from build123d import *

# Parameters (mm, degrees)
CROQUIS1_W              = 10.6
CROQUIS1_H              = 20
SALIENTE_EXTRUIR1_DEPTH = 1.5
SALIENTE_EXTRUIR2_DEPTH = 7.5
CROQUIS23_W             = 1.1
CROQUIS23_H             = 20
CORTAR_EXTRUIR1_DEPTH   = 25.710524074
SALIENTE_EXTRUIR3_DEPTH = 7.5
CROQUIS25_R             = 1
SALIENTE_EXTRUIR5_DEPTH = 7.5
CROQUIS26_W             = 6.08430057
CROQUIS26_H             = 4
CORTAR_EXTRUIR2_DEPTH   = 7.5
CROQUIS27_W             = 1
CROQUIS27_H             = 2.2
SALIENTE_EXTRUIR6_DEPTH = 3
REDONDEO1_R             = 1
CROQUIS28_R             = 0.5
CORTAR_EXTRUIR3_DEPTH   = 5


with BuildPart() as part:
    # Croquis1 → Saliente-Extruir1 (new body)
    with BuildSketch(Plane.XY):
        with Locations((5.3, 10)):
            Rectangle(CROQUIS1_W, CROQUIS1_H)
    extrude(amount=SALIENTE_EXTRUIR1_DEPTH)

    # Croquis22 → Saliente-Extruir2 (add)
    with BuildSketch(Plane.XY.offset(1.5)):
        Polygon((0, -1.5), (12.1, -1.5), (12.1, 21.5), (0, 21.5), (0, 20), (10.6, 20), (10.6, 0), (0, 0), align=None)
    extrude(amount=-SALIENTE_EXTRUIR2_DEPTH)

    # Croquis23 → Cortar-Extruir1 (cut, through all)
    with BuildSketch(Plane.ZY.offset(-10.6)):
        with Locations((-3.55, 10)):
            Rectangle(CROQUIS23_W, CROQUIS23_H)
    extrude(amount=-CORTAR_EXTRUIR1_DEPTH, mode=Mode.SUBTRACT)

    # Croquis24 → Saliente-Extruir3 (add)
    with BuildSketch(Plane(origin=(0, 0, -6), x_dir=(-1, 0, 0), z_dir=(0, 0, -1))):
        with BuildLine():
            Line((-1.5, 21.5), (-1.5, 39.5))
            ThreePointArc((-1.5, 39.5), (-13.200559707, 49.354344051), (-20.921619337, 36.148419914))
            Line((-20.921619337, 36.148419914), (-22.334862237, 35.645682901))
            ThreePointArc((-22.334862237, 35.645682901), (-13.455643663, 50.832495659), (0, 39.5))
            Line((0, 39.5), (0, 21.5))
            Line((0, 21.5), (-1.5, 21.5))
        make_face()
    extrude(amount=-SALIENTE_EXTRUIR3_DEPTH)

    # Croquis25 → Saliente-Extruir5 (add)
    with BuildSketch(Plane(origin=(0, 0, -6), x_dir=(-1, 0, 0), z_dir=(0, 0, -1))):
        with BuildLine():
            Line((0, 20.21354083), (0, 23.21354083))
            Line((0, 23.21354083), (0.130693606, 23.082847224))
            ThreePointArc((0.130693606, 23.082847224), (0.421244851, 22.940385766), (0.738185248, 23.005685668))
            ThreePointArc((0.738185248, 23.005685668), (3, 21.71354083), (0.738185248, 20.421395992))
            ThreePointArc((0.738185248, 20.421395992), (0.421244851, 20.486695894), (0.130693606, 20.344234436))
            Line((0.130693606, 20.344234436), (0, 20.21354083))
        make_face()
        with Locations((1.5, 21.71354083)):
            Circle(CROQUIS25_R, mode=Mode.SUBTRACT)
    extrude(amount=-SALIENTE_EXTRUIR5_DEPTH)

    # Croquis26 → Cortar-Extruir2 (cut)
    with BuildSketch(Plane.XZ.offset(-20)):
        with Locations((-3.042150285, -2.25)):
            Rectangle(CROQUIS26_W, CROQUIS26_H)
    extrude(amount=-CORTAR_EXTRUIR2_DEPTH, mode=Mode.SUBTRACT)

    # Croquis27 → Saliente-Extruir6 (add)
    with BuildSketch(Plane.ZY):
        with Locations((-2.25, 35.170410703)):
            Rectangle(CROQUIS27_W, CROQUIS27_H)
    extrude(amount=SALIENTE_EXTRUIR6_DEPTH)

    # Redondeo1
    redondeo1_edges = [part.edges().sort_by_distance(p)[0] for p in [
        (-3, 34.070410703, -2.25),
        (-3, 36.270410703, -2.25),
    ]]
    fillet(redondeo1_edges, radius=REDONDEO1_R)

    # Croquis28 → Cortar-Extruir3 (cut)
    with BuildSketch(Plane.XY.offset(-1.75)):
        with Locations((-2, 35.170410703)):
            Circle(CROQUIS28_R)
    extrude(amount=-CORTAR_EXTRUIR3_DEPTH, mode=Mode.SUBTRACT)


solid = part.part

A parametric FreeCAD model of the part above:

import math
import FreeCAD as App
import Part
import Sketcher
Q = App.Units.Quantity


def edges_at(feature, points):
    """Names of the edges that pass closest to the given points."""
    edges = feature.Shape.Edges
    near = lambda p: min(range(len(edges)), key=lambda i: edges[i].distToShape(Part.Vertex(*p))[0])
    return sorted({f"Edge{near(p) + 1}" for p in points})

doc = App.newDocument("Part")
body = doc.addObject("PartDesign::Body", "Body")

sketch1 = body.newObject("Sketcher::SketchObject", "Sketch")
sketch1.AttachmentSupport = (doc.getObject("XY_Plane"), [""])
sketch1.MapMode = "FlatFace"
sketch1.addGeometry(Part.LineSegment(App.Vector(0, 20, 0), App.Vector(0, 0, 0)), False)
sketch1.addGeometry(Part.LineSegment(App.Vector(0, 0, 0), App.Vector(10.6, 0, 0)), False)
sketch1.addGeometry(Part.LineSegment(App.Vector(10.6, 0, 0), App.Vector(10.6, 20, 0)), False)
sketch1.addGeometry(Part.LineSegment(App.Vector(10.6, 20, 0), App.Vector(0, 20, 0)), False)
sketch1.addConstraint(Sketcher.Constraint("Coincident", 0, 2, 1, 1))
sketch1.addConstraint(Sketcher.Constraint("Coincident", 1, 2, 2, 1))
sketch1.addConstraint(Sketcher.Constraint("Coincident", 2, 2, 3, 1))
sketch1.addConstraint(Sketcher.Constraint("Coincident", 3, 2, 0, 1))
sketch1.addConstraint(Sketcher.Constraint("Vertical", 0))
sketch1.addConstraint(Sketcher.Constraint("Horizontal", 1))
sketch1.addConstraint(Sketcher.Constraint("Vertical", 2))
sketch1.addConstraint(Sketcher.Constraint("Horizontal", 3))
sketch1.addConstraint(Sketcher.Constraint("Coincident", 0, 2, -1, 1))
sketch1.addConstraint(Sketcher.Constraint("DistanceY", 0, 2, 0, 1, Q("20 mm")))
sketch1.addConstraint(Sketcher.Constraint("DistanceX", 1, 1, 1, 2, Q("10.6 mm")))
pad1 = body.newObject("PartDesign::Pad", "Pad")
pad1.Profile = sketch1
pad1.Length = 1.5

sketch2 = body.newObject("Sketcher::SketchObject", "Sketch001")
sketch2.AttachmentSupport = (doc.getObject("XY_Plane"), [""])
sketch2.MapMode = "FlatFace"
sketch2.AttachmentOffset = App.Placement(App.Vector(0, 0, 1.5), App.Rotation())
sketch2.addGeometry(Part.LineSegment(App.Vector(0, -1.5, 0), App.Vector(12.1, -1.5, 0)), False)
sketch2.addGeometry(Part.LineSegment(App.Vector(12.1, -1.5, 0), App.Vector(12.1, 21.5, 0)), False)
sketch2.addGeometry(Part.LineSegment(App.Vector(12.1, 21.5, 0), App.Vector(0, 21.5, 0)), False)
sketch2.addGeometry(Part.LineSegment(App.Vector(0, 21.5, 0), App.Vector(0, 20, 0)), False)
sketch2.addGeometry(Part.LineSegment(App.Vector(0, 20, 0), App.Vector(10.6, 20, 0)), False)
sketch2.addGeometry(Part.LineSegment(App.Vector(10.6, 20, 0), App.Vector(10.6, 0, 0)), False)
sketch2.addGeometry(Part.LineSegment(App.Vector(10.6, 0, 0), App.Vector(0, 0, 0)), False)
sketch2.addGeometry(Part.LineSegment(App.Vector(0, 0, 0), App.Vector(0, -1.5, 0)), False)
sketch2.addConstraint(Sketcher.Constraint("Coincident", 0, 2, 1, 1))
sketch2.addConstraint(Sketcher.Constraint("Coincident", 1, 2, 2, 1))
sketch2.addConstraint(Sketcher.Constraint("Coincident", 2, 2, 3, 1))
sketch2.addConstraint(Sketcher.Constraint("Coincident", 3, 2, 4, 1))
sketch2.addConstraint(Sketcher.Constraint("Coincident", 4, 2, 5, 1))
sketch2.addConstraint(Sketcher.Constraint("Coincident", 5, 2, 6, 1))
sketch2.addConstraint(Sketcher.Constraint("Coincident", 6, 2, 7, 1))
sketch2.addConstraint(Sketcher.Constraint("Coincident", 7, 2, 0, 1))
sketch2.addConstraint(Sketcher.Constraint("Horizontal", 0))
sketch2.addConstraint(Sketcher.Constraint("Vertical", 1))
sketch2.addConstraint(Sketcher.Constraint("Horizontal", 2))
sketch2.addConstraint(Sketcher.Constraint("Vertical", 3))
sketch2.addConstraint(Sketcher.Constraint("Horizontal", 4))
sketch2.addConstraint(Sketcher.Constraint("Vertical", 5))
sketch2.addConstraint(Sketcher.Constraint("Horizontal", 6))
sketch2.addConstraint(Sketcher.Constraint("Vertical", 7))
sketch2.addConstraint(Sketcher.Constraint("Coincident", 6, 2, -1, 1))
sketch2.addConstraint(Sketcher.Constraint("PointOnObject", 2, 2, -2))
sketch2.addConstraint(Sketcher.Constraint("Equal", 3, 7))
sketch2.addConstraint(Sketcher.Constraint("DistanceY", 1, 1, 1, 2, Q("23 mm")))
sketch2.addConstraint(Sketcher.Constraint("DistanceY", 5, 2, 5, 1, Q("20 mm")))
sketch2.addConstraint(Sketcher.Constraint("DistanceX", 0, 1, 0, 2, Q("12.1 mm")))
sketch2.addConstraint(Sketcher.Constraint("DistanceX", 4, 1, 4, 2, Q("10.6 mm")))
pad2 = body.newObject("PartDesign::Pad", "Pad001")
pad2.Profile = sketch2
pad2.Length = 7.5
pad2.Reversed = True

sketch3 = body.newObject("Sketcher::SketchObject", "Sketch002")
sketch3.AttachmentSupport = (doc.getObject("YZ_Plane"), [""])
sketch3.MapMode = "FlatFace"
sketch3.AttachmentOffset = App.Placement(App.Vector(0, 0, 10.6), App.Rotation())
sketch3.addGeometry(Part.LineSegment(App.Vector(20, -4.1, 0), App.Vector(0, -4.1, 0)), False)
sketch3.addGeometry(Part.LineSegment(App.Vector(0, -4.1, 0), App.Vector(0, -3, 0)), False)
sketch3.addGeometry(Part.LineSegment(App.Vector(0, -3, 0), App.Vector(20, -3, 0)), False)
sketch3.addGeometry(Part.LineSegment(App.Vector(20, -3, 0), App.Vector(20, -4.1, 0)), False)
sketch3.addConstraint(Sketcher.Constraint("Coincident", 0, 2, 1, 1))
sketch3.addConstraint(Sketcher.Constraint("Coincident", 1, 2, 2, 1))
sketch3.addConstraint(Sketcher.Constraint("Coincident", 2, 2, 3, 1))
sketch3.addConstraint(Sketcher.Constraint("Coincident", 3, 2, 0, 1))
sketch3.addConstraint(Sketcher.Constraint("Horizontal", 0))
sketch3.addConstraint(Sketcher.Constraint("Vertical", 1))
sketch3.addConstraint(Sketcher.Constraint("Horizontal", 2))
sketch3.addConstraint(Sketcher.Constraint("Vertical", 3))
sketch3.addConstraint(Sketcher.Constraint("PointOnObject", 0, 2, -2))
sketch3.addConstraint(Sketcher.Constraint("DistanceX", 0, 2, 0, 1, Q("20 mm")))
sketch3.addConstraint(Sketcher.Constraint("DistanceY", 1, 1, 1, 2, Q("1.1 mm")))
sketch3.addConstraint(Sketcher.Constraint("DistanceY", 1, 2, -1, 1, Q("3 mm")))
pocket1 = body.newObject("PartDesign::Pocket", "Pocket")
pocket1.Profile = sketch3
pocket1.Type = "ThroughAll"
pocket1.Reversed = True

sketch4 = body.newObject("Sketcher::SketchObject", "Sketch003")
sketch4.AttachmentSupport = (doc.getObject("XY_Plane"), [""])
sketch4.MapMode = "FlatFace"
sketch4.AttachmentOffset = App.Placement(App.Vector(0, 0, -6), App.Rotation())
sketch4.addGeometry(Part.LineSegment(App.Vector(1.5, 39.5, 0), App.Vector(1.5, 21.5, 0)), False)
sketch4.addGeometry(Part.LineSegment(App.Vector(1.5, 21.5, 0), App.Vector(0, 21.5, 0)), False)
sketch4.addGeometry(Part.LineSegment(App.Vector(0, 21.5, 0), App.Vector(0, 39.5, 0)), False)
sketch4.addGeometry(Part.ArcOfCircle(Part.Circle(App.Vector(11.5, 39.5, 0), App.Vector(0, 0, 1), 11.5), math.radians(-19.582147), math.radians(180)), False)
sketch4.addGeometry(Part.LineSegment(App.Vector(22.334862, 35.645683, 0), App.Vector(20.921619, 36.14842, 0)), False)
sketch4.addGeometry(Part.ArcOfCircle(Part.Circle(App.Vector(11.5, 39.5, 0), App.Vector(0, 0, 1), 10), math.radians(-19.582147), math.radians(180)), False)
sketch4.addConstraint(Sketcher.Constraint("Coincident", 0, 2, 1, 1))
sketch4.addConstraint(Sketcher.Constraint("Coincident", 1, 2, 2, 1))
sketch4.addConstraint(Sketcher.Constraint("Tangent", 2, 2, 3, 2))
sketch4.addConstraint(Sketcher.Constraint("Coincident", 3, 1, 4, 1))
sketch4.addConstraint(Sketcher.Constraint("Coincident", 4, 2, 5, 1))
sketch4.addConstraint(Sketcher.Constraint("Tangent", 5, 2, 0, 1))
sketch4.addConstraint(Sketcher.Constraint("Vertical", 0))
sketch4.addConstraint(Sketcher.Constraint("Horizontal", 1))
sketch4.addConstraint(Sketcher.Constraint("Vertical", 2))
sketch4.addConstraint(Sketcher.Constraint("Coincident", 5, 3, 3, 3))
sketch4.addConstraint(Sketcher.Constraint("PointOnObject", 1, 2, -2))
sketch4.addConstraint(Sketcher.Constraint("Radius", 5, Q("10 mm")))
sketch4.addConstraint(Sketcher.Constraint("Radius", 3, Q("11.5 mm")))
sketch4.addConstraint(Sketcher.Constraint("DistanceY", 0, 2, 0, 1, Q("18 mm")))
sketch4.addConstraint(Sketcher.Constraint("DistanceY", -1, 1, 3, 3, Q("39.5 mm")))
sketch4.addConstraint(Sketcher.Constraint("DistanceX", -1, 1, 4, 2, Q("20.921619 mm")))
sketch4.addConstraint(Sketcher.Constraint("DistanceX", -1, 1, 3, 1, Q("22.334862 mm")))
pad3 = body.newObject("PartDesign::Pad", "Pad002")
pad3.Profile = sketch4
pad3.Length = 7.5

sketch5 = body.newObject("Sketcher::SketchObject", "Sketch004")
sketch5.AttachmentSupport = (doc.getObject("XY_Plane"), [""])
sketch5.MapMode = "FlatFace"
sketch5.AttachmentOffset = App.Placement(App.Vector(0, 0, -6), App.Rotation())
sketch5.addGeometry(Part.LineSegment(App.Vector(0, 23.213541, 0), App.Vector(0, 20.213541, 0)), False)
sketch5.addGeometry(Part.LineSegment(App.Vector(0, 20.213541, 0), App.Vector(-0.130694, 20.344234, 0)), False)
sketch5.addGeometry(Part.ArcOfCircle(Part.Circle(App.Vector(-0.484247, 19.990681, 0), App.Vector(0, 0, 1), 0.5), math.radians(45), math.radians(120.522488)), False)
sketch5.addGeometry(Part.ArcOfCircle(Part.Circle(App.Vector(-1.5, 21.713541, 0), App.Vector(0, 0, 1), 1.5), math.radians(59.477512), math.radians(300.522488)), False)
sketch5.addGeometry(Part.ArcOfCircle(Part.Circle(App.Vector(-0.484247, 23.436401, 0), App.Vector(0, 0, 1), 0.5), math.radians(-120.522488), math.radians(-45)), False)
sketch5.addGeometry(Part.LineSegment(App.Vector(-0.130694, 23.082847, 0), App.Vector(0, 23.213541, 0)), False)
sketch5.addGeometry(Part.Circle(App.Vector(-1.5, 21.713541, 0), App.Vector(0, 0, 1), 1), False)
sketch5.addConstraint(Sketcher.Constraint("Coincident", 0, 2, 1, 1))
sketch5.addConstraint(Sketcher.Constraint("Tangent", 1, 2, 2, 1))
sketch5.addConstraint(Sketcher.Constraint("Tangent", 2, 2, 3, 2))
sketch5.addConstraint(Sketcher.Constraint("Tangent", 3, 1, 4, 1))
sketch5.addConstraint(Sketcher.Constraint("Tangent", 4, 2, 5, 1))
sketch5.addConstraint(Sketcher.Constraint("Coincident", 5, 2, 0, 1))
sketch5.addConstraint(Sketcher.Constraint("Vertical", 0))
sketch5.addConstraint(Sketcher.Constraint("Coincident", 6, 3, 3, 3))
sketch5.addConstraint(Sketcher.Constraint("Equal", 2, 4))
sketch5.addConstraint(Sketcher.Constraint("PointOnObject", 0, 2, -2))
sketch5.addConstraint(Sketcher.Constraint("Perpendicular", 1, 5))
sketch5.addConstraint(Sketcher.Constraint("Vertical", 2, 3, 4, 3))
sketch5.addConstraint(Sketcher.Constraint("Vertical", 1, 2, 4, 2))
sketch5.addConstraint(Sketcher.Constraint("Diameter", 6, Q("2 mm")))
sketch5.addConstraint(Sketcher.Constraint("Radius", 2, Q("0.5 mm")))
sketch5.addConstraint(Sketcher.Constraint("Radius", 3, Q("1.5 mm")))
sketch5.addConstraint(Sketcher.Constraint("DistanceY", 0, 2, 0, 1, Q("3 mm")))
sketch5.addConstraint(Sketcher.Constraint("DistanceX", 3, 3, -1, 1, Q("1.5 mm")))
sketch5.addConstraint(Sketcher.Constraint("DistanceY", -1, 1, 4, 3, Q("23.436401 mm")))
pad4 = body.newObject("PartDesign::Pad", "Pad003")
pad4.Profile = sketch5
pad4.Length = 7.5

sketch6 = body.newObject("Sketcher::SketchObject", "Sketch005")
sketch6.AttachmentSupport = (doc.getObject("XZ_Plane"), [""])
sketch6.MapMode = "FlatFace"
sketch6.AttachmentOffset = App.Placement(App.Vector(0, 0, -20), App.Rotation())
sketch6.addGeometry(Part.LineSegment(App.Vector(-6.084301, -0.25, 0), App.Vector(-6.084301, -4.25, 0)), False)
sketch6.addGeometry(Part.LineSegment(App.Vector(-6.084301, -4.25, 0), App.Vector(0, -4.25, 0)), False)
sketch6.addGeometry(Part.LineSegment(App.Vector(0, -4.25, 0), App.Vector(0, -0.25, 0)), False)
sketch6.addGeometry(Part.LineSegment(App.Vector(0, -0.25, 0), App.Vector(-6.084301, -0.25, 0)), False)
sketch6.addConstraint(Sketcher.Constraint("Coincident", 0, 2, 1, 1))
sketch6.addConstraint(Sketcher.Constraint("Coincident", 1, 2, 2, 1))
sketch6.addConstraint(Sketcher.Constraint("Coincident", 2, 2, 3, 1))
sketch6.addConstraint(Sketcher.Constraint("Coincident", 3, 2, 0, 1))
sketch6.addConstraint(Sketcher.Constraint("Vertical", 0))
sketch6.addConstraint(Sketcher.Constraint("Horizontal", 1))
sketch6.addConstraint(Sketcher.Constraint("Vertical", 2))
sketch6.addConstraint(Sketcher.Constraint("Horizontal", 3))
sketch6.addConstraint(Sketcher.Constraint("PointOnObject", 1, 2, -2))
sketch6.addConstraint(Sketcher.Constraint("DistanceY", 0, 2, 0, 1, Q("4 mm")))
sketch6.addConstraint(Sketcher.Constraint("DistanceY", 0, 2, -1, 1, Q("4.25 mm")))
sketch6.addConstraint(Sketcher.Constraint("DistanceX", 1, 1, 1, 2, Q("6.084301 mm")))
pocket2 = body.newObject("PartDesign::Pocket", "Pocket001")
pocket2.Profile = sketch6
pocket2.Length = 7.5

sketch7 = body.newObject("Sketcher::SketchObject", "Sketch006")
sketch7.AttachmentSupport = (doc.getObject("YZ_Plane"), [""])
sketch7.MapMode = "FlatFace"
sketch7.addGeometry(Part.LineSegment(App.Vector(36.270411, -2.75, 0), App.Vector(34.070411, -2.75, 0)), False)
sketch7.addGeometry(Part.LineSegment(App.Vector(34.070411, -2.75, 0), App.Vector(34.070411, -1.75, 0)), False)
sketch7.addGeometry(Part.LineSegment(App.Vector(34.070411, -1.75, 0), App.Vector(36.270411, -1.75, 0)), False)
sketch7.addGeometry(Part.LineSegment(App.Vector(36.270411, -1.75, 0), App.Vector(36.270411, -2.75, 0)), False)
sketch7.addConstraint(Sketcher.Constraint("Coincident", 0, 2, 1, 1))
sketch7.addConstraint(Sketcher.Constraint("Coincident", 1, 2, 2, 1))
sketch7.addConstraint(Sketcher.Constraint("Coincident", 2, 2, 3, 1))
sketch7.addConstraint(Sketcher.Constraint("Coincident", 3, 2, 0, 1))
sketch7.addConstraint(Sketcher.Constraint("Horizontal", 0))
sketch7.addConstraint(Sketcher.Constraint("Vertical", 1))
sketch7.addConstraint(Sketcher.Constraint("Horizontal", 2))
sketch7.addConstraint(Sketcher.Constraint("Vertical", 3))
sketch7.addConstraint(Sketcher.Constraint("DistanceY", 1, 1, 1, 2, Q("1 mm")))
sketch7.addConstraint(Sketcher.Constraint("DistanceX", 0, 2, 0, 1, Q("2.2 mm")))
sketch7.addConstraint(Sketcher.Constraint("DistanceY", 0, 2, -1, 1, Q("2.75 mm")))
sketch7.addConstraint(Sketcher.Constraint("DistanceX", -1, 1, 0, 2, Q("34.070411 mm")))
pad5 = body.newObject("PartDesign::Pad", "Pad004")
pad5.Profile = sketch7
pad5.Length = 3
pad5.Reversed = True
doc.recompute()

fillet = body.newObject("PartDesign::Fillet", "Fillet")
fillet.Base = (pad5, edges_at(pad5, [(-3, 34.07, -2.25), (-3, 36.27, -2.25)]))
fillet.Radius = 1

sketch8 = body.newObject("Sketcher::SketchObject", "Sketch007")
sketch8.AttachmentSupport = (doc.getObject("XY_Plane"), [""])
sketch8.MapMode = "FlatFace"
sketch8.AttachmentOffset = App.Placement(App.Vector(0, 0, -1.75), App.Rotation())
sketch8.addGeometry(Part.Circle(App.Vector(-2, 35.170411, 0), App.Vector(0, 0, 1), 0.5), False)
sketch8.addConstraint(Sketcher.Constraint("Diameter", 0, Q("1 mm")))
sketch8.addConstraint(Sketcher.Constraint("DistanceX", 0, 3, -1, 1, Q("2 mm")))
sketch8.addConstraint(Sketcher.Constraint("DistanceY", -1, 1, 0, 3, Q("35.170411 mm")))
pocket3 = body.newObject("PartDesign::Pocket", "Pocket002")
pocket3.Profile = sketch8
pocket3.Length = 5

doc.recompute()
